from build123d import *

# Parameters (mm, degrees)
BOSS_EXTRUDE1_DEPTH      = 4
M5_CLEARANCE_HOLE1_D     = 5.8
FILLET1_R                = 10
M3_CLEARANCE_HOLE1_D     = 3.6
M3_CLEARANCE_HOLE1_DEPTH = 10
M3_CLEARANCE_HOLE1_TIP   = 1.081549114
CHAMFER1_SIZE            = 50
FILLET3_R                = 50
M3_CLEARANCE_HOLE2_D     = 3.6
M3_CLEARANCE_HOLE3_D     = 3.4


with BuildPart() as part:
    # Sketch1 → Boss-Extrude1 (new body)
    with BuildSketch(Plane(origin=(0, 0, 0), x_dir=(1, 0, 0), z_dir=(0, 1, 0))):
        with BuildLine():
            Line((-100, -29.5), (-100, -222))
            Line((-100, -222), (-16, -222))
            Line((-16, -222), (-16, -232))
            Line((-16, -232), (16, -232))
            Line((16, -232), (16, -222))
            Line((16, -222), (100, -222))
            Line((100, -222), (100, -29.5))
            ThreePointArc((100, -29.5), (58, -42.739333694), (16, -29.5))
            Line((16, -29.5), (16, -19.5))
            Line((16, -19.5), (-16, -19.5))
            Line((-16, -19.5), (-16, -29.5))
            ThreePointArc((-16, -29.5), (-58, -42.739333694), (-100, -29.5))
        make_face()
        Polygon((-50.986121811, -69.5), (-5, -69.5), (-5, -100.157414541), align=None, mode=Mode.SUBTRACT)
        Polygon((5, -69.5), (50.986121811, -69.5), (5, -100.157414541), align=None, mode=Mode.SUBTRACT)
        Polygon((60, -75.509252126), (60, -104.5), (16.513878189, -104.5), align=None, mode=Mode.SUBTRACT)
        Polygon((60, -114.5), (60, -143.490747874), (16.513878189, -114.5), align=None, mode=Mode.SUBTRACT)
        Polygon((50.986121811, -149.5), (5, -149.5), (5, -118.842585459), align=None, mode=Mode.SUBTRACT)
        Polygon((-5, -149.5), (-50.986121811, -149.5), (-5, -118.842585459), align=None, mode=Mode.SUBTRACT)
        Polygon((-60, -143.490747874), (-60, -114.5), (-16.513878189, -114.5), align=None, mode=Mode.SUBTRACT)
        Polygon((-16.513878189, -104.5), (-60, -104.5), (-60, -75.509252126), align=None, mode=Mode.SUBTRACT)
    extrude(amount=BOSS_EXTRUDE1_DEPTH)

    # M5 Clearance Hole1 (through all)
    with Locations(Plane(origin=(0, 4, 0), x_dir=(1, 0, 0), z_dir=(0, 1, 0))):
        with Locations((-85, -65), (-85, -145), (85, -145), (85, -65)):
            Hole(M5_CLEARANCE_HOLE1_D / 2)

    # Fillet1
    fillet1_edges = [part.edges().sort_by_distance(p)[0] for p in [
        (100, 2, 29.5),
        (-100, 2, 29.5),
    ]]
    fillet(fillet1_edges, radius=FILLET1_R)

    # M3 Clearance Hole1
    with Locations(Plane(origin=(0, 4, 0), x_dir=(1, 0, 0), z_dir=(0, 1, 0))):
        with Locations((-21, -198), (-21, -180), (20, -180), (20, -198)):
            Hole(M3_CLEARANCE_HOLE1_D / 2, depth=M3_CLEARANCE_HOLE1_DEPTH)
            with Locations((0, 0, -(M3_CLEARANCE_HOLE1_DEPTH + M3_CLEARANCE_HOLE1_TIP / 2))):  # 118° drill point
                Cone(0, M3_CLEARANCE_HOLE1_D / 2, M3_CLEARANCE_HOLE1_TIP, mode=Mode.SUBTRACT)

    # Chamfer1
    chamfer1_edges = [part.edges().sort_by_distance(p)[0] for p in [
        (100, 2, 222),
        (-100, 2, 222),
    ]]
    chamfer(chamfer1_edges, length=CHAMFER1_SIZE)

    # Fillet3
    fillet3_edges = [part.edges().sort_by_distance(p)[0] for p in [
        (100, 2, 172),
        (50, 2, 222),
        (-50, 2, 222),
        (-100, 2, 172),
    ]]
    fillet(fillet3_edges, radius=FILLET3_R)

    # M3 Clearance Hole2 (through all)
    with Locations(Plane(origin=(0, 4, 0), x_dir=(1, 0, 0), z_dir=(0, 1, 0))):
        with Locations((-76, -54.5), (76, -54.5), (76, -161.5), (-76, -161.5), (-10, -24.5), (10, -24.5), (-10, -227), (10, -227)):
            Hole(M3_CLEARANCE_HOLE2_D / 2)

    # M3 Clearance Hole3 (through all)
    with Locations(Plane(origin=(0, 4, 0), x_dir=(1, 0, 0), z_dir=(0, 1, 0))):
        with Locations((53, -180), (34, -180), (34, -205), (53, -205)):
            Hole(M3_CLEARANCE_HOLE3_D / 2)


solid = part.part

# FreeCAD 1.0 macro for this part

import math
import FreeCAD as App
import Part
import Sketcher


def edges_at(feature, points):
    """Names of the edges that pass closest to the given points."""
    edges = feature.Shape.Edges
    near = lambda p: min(range(len(edges)), key=lambda i: edges[i].distToShape(Part.Vertex(*p))[0])
    return sorted({f"Edge{near(p) + 1}" for p in points})


def add_polygon(sketch, points):
    """Adds a closed chain of lines whose ends are joined by coincident constraints."""
    first, n = sketch.GeometryCount, len(points)
    for a, b in zip(points, points[1:] + points[:1]):
        sketch.addGeometry(Part.LineSegment(App.Vector(*a, 0), App.Vector(*b, 0)), False)
    for i in range(n):
        sketch.addConstraint(Sketcher.Constraint("Coincident", first + i, 2, first + (i + 1) % n, 1))

doc = App.newDocument("Part")
body = doc.addObject("PartDesign::Body", "Body")

# Sketch on XZ plane
sketch1 = doc.addObject("Sketcher::SketchObject", "Sketch")
body.addObject(sketch1)
sketch1.AttachmentSupport = (doc.XZ_Plane, [""])
sketch1.MapMode = "FlatFace"
sketch1.addGeometry(Part.LineSegment(App.Vector(-100, 29.5, 0), App.Vector(-100, 222, 0)), False)  # 0
sketch1.addGeometry(Part.LineSegment(App.Vector(-100, 222, 0), App.Vector(-16, 222, 0)), False)  # 1
sketch1.addGeometry(Part.LineSegment(App.Vector(-16, 222, 0), App.Vector(-16, 232, 0)), False)  # 2
sketch1.addGeometry(Part.LineSegment(App.Vector(-16, 232, 0), App.Vector(16, 232, 0)), False)  # 3
sketch1.addGeometry(Part.LineSegment(App.Vector(16, 232, 0), App.Vector(16, 222, 0)), False)  # 4
sketch1.addGeometry(Part.LineSegment(App.Vector(16, 222, 0), App.Vector(100, 222, 0)), False)  # 5
sketch1.addGeometry(Part.LineSegment(App.Vector(100, 222, 0), App.Vector(100, 29.5, 0)), False)  # 6
sketch1.addGeometry(Part.ArcOfCircle(Part.Circle(App.Vector(58, -30.5, 0), App.Vector(0, 0, 1), 73.239334), math.radians(55.00798), math.radians(124.99202)), False)  # 7
sketch1.addGeometry(Part.LineSegment(App.Vector(16, 29.5, 0), App.Vector(16, 19.5, 0)), False)  # 8
sketch1.addGeometry(Part.LineSegment(App.Vector(16, 19.5, 0), App.Vector(-16, 19.5, 0)), False)  # 9
sketch1.addGeometry(Part.LineSegment(App.Vector(-16, 19.5, 0), App.Vector(-16, 29.5, 0)), False)  # 10
sketch1.addGeometry(Part.ArcOfCircle(Part.Circle(App.Vector(-58, -30.5, 0), App.Vector(0, 0, 1), 73.239334), math.radians(55.00798), math.radians(124.99202)), False)  # 11
add_polygon(sketch1, [(-5, 118.842585), (-5, 149.5), (-50.986122, 149.5)])  # lines 12-14
add_polygon(sketch1, [(-16.513878, 114.5), (-60, 143.490748), (-60, 114.5)])  # lines 15-17
add_polygon(sketch1, [(5, 118.842585), (50.986122, 149.5), (5, 149.5)])  # lines 18-20
add_polygon(sketch1, [(16.513878, 114.5), (60, 114.5), (60, 143.490748)])  # lines 21-23
add_polygon(sketch1, [(-60, 75.509252), (-16.513878, 104.5), (-60, 104.5)])  # lines 24-26
add_polygon(sketch1, [(-5, 100.157415), (-50.986122, 69.5), (-5, 69.5)])  # lines 27-29
add_polygon(sketch1, [(16.513878, 104.5), (60, 75.509252), (60, 104.5)])  # lines 30-32
add_polygon(sketch1, [(5, 100.157415), (5, 69.5), (50.986122, 69.5)])  # lines 33-35
sketch1.addConstraint(Sketcher.Constraint("Coincident", 0, 2, 1, 1))
sketch1.addConstraint(Sketcher.Constraint("Coincident", 1, 2, 2, 1))
sketch1.addConstraint(Sketcher.Constraint("Coincident", 2, 2, 3, 1))
sketch1.addConstraint(Sketcher.Constraint("Coincident", 3, 2, 4, 1))
sketch1.addConstraint(Sketcher.Constraint("Coincident", 4, 2, 5, 1))
sketch1.addConstraint(Sketcher.Constraint("Coincident", 5, 2, 6, 1))
sketch1.addConstraint(Sketcher.Constraint("Coincident", 6, 2, 7, 1))
sketch1.addConstraint(Sketcher.Constraint("Coincident", 7, 2, 8, 1))
sketch1.addConstraint(Sketcher.Constraint("Coincident", 8, 2, 9, 1))
sketch1.addConstraint(Sketcher.Constraint("Coincident", 9, 2, 10, 1))
sketch1.addConstraint(Sketcher.Constraint("Coincident", 10, 2, 11, 1))
sketch1.addConstraint(Sketcher.Constraint("Coincident", 11, 2, 0, 1))
sketch1.addConstraint(Sketcher.Constraint("Vertical", 0))
sketch1.addConstraint(Sketcher.Constraint("Horizontal", 1))
sketch1.addConstraint(Sketcher.Constraint("Vertical", 2))
sketch1.addConstraint(Sketcher.Constraint("Horizontal", 3))
sketch1.addConstraint(Sketcher.Constraint("Vertical", 4))
sketch1.addConstraint(Sketcher.Constraint("Horizontal", 5))
sketch1.addConstraint(Sketcher.Constraint("Vertical", 6))
sketch1.addConstraint(Sketcher.Constraint("Vertical", 8))
sketch1.addConstraint(Sketcher.Constraint("Horizontal", 9))
sketch1.addConstraint(Sketcher.Constraint("Vertical", 10))
sketch1.addConstraint(Sketcher.Constraint("Vertical", 12))
sketch1.addConstraint(Sketcher.Constraint("Horizontal", 13))
sketch1.addConstraint(Sketcher.Constraint("Vertical", 16))
sketch1.addConstraint(Sketcher.Constraint("Horizontal", 17))
sketch1.addConstraint(Sketcher.Constraint("Horizontal", 19))
sketch1.addConstraint(Sketcher.Constraint("Vertical", 20))
sketch1.addConstraint(Sketcher.Constraint("Horizontal", 21))
sketch1.addConstraint(Sketcher.Constraint("Vertical", 22))
sketch1.addConstraint(Sketcher.Constraint("Horizontal", 25))
sketch1.addConstraint(Sketcher.Constraint("Vertical", 26))
sketch1.addConstraint(Sketcher.Constraint("Horizontal", 28))
sketch1.addConstraint(Sketcher.Constraint("Vertical", 29))
sketch1.addConstraint(Sketcher.Constraint("Vertical", 31))
sketch1.addConstraint(Sketcher.Constraint("Horizontal", 32))
sketch1.addConstraint(Sketcher.Constraint("Vertical", 33))
sketch1.addConstraint(Sketcher.Constraint("Horizontal", 34))
sketch1.addConstraint(Sketcher.Constraint("Equal", 7, 11))
sketch1.addConstraint(Sketcher.Constraint("Symmetric", 7, 3, 11, 3, -2))
sketch1.addConstraint(Sketcher.Constraint("Symmetric", 1, 2, 4, 2, -2))
sketch1.addConstraint(Sketcher.Constraint("Symmetric", 13, 2, 18, 2, -2))
sketch1.addConstraint(Sketcher.Constraint("Symmetric", 14, 2, 20, 2, -2))
sketch1.addConstraint(Sketcher.Constraint("Symmetric", 16, 2, 21, 2, -2))
sketch1.addConstraint(Sketcher.Constraint("Symmetric", 26, 2, 30, 2, -2))
sketch1.addConstraint(Sketcher.Constraint("Symmetric", 24, 2, 32, 2, -2))
sketch1.addConstraint(Sketcher.Constraint("Symmetric", 28, 2, 33, 2, -2))
sketch1.addConstraint(Sketcher.Constraint("Parallel", 14, 15))
sketch1.addConstraint(Sketcher.Constraint("Parallel", 18, 23))
sketch1.addConstraint(Sketcher.Constraint("Parallel", 23, 24))
sketch1.addConstraint(Sketcher.Constraint("Parallel", 24, 27))
sketch1.addConstraint(Sketcher.Constraint("Parallel", 30, 35))
sketch1.addConstraint(Sketcher.Constraint("Horizontal", 6, 2, 7, 2))
sketch1.addConstraint(Sketcher.Constraint("Horizontal", 7, 2, 10, 2))
sketch1.addConstraint(Sketcher.Constraint("Horizontal", 10, 2, 11, 2))
sketch1.addConstraint(Sketcher.Constraint("Horizontal", 15, 2, 22, 2))
sketch1.addConstraint(Sketcher.Constraint("Horizontal", 29, 2, 35, 2))
sketch1.addConstraint(Sketcher.Constraint("Vertical", 4, 2, 7, 2))
sketch1.addConstraint(Sketcher.Constraint("Vertical", 17, 2, 24, 2))
sketch1.addConstraint(Sketcher.Constraint("Vertical", 16, 2, 25, 2))
sketch1.addConstraint(Sketcher.Constraint("Vertical", 13, 2, 27, 2))
sketch1.addConstraint(Sketcher.Constraint("Vertical", 14, 2, 28, 2))
sketch1.addConstraint(Sketcher.Constraint("Equal", 4, 8))
sketch1.addConstraint(Sketcher.Constraint("DistanceX", 1, 1, 1, 2, 84.0))
sketch1.addConstraint(Sketcher.Constraint("DistanceX", 3, 1, 3, 2, 32.0))
sketch1.addConstraint(Sketcher.Constraint("DistanceY", 2, 1, 2, 2, 10.0))
sketch1.addConstraint(Sketcher.Constraint("DistanceY", 0, 1, 0, 2, 192.5))
sketch1.addConstraint(Sketcher.Constraint("DistanceY", -1, 1, 0, 2, 222.0))
sketch1.addConstraint(Sketcher.Constraint("DistanceX", 12, 2, -1, 1, 5.0))
sketch1.addConstraint(Sketcher.Constraint("DistanceX", 15, 2, -1, 1, 60.0))
sketch1.addConstraint(Sketcher.Constraint("DistanceY", 7, 3, 6, 2, 60.0))
sketch1.addConstraint(Sketcher.Constraint("DistanceY", 16, 2, 13, 2, 35.0))
sketch1.addConstraint(Sketcher.Constraint("DistanceY", 11, 2, 16, 2, 85.0))
sketch1.addConstraint(Sketcher.Constraint("DistanceY", 24, 2, 17, 2, 10.0))
sketch1.addConstraint(Sketcher.Constraint("DistanceY", 27, 2, 25, 2, 35.0))
sketch1.addConstraint(Sketcher.Constraint("DistanceX", 17, 2, 18, 2, 67.5))
sketch1.addConstraint(Sketcher.Constraint("DistanceX", 13, 2, 13, 1, 45.986122))
sketch1.addConstraint(Sketcher.Constraint("Distance", 14, 55.26844))
pad1 = doc.addObject("PartDesign::Pad", "Pad")
body.addObject(pad1)
pad1.Profile = sketch1
pad1.Length = 4
pad1.Reversed = True

# Sketch on XZ plane
sketch2 = doc.addObject("Sketcher::SketchObject", "Sketch001")
body.addObject(sketch2)
sketch2.AttachmentSupport = (doc.XZ_Plane, [""])
sketch2.MapMode = "FlatFace"
sketch2.AttachmentOffset = App.Placement(App.Vector(0, 0, -4), App.Rotation())
sketch2.addGeometry(Part.Circle(App.Vector(-85, 65, 0), App.Vector(0, 0, 1), 2.9), False)
sketch2.addGeometry(Part.Circle(App.Vector(-85, 145, 0), App.Vector(0, 0, 1), 2.9), False)
sketch2.addGeometry(Part.Circle(App.Vector(85, 145, 0), App.Vector(0, 0, 1), 2.9), False)
sketch2.addGeometry(Part.Circle(App.Vector(85, 65, 0), App.Vector(0, 0, 1), 2.9), False)
sketch2.addConstraint(Sketcher.Constraint("Equal", 0, 1))
sketch2.addConstraint(Sketcher.Constraint("Equal", 1, 2))
sketch2.addConstraint(Sketcher.Constraint("Equal", 2, 3))
sketch2.addConstraint(Sketcher.Constraint("Symmetric", 1, 3, 2, 3, -2))
sketch2.addConstraint(Sketcher.Constraint("Symmetric", 0, 3, 3, 3, -2))
sketch2.addConstraint(Sketcher.Constraint("Vertical", 0, 3, 1, 3))
sketch2.addConstraint(Sketcher.Constraint("Diameter", 0, 5.8))
sketch2.addConstraint(Sketcher.Constraint("DistanceX", 0, 3, -1, 1, 85.0))
sketch2.addConstraint(Sketcher.Constraint("DistanceY", -1, 1, 0, 3, 65.0))
sketch2.addConstraint(Sketcher.Constraint("DistanceY", -1, 1, 1, 3, 145.0))
doc.recompute()
hole = doc.addObject("PartDesign::Hole", "Hole")
body.addObject(hole)
hole.Profile = sketch2
hole.ThreadType = "None"
hole.Diameter = 5.8
hole.DepthType = "ThroughAll"
hole.Reversed = True
doc.recompute()

fillet = doc.addObject("PartDesign::Fillet", "Fillet")
body.addObject(fillet)
fillet.Base = (hole, edges_at(hole, [(100, 2, 29.5), (-100, 2, 29.5)]))
fillet.Radius = 10

# Sketch on XZ plane
sketch3 = doc.addObject("Sketcher::SketchObject", "Sketch002")
body.addObject(sketch3)
sketch3.AttachmentSupport = (doc.XZ_Plane, [""])
sketch3.MapMode = "FlatFace"
sketch3.AttachmentOffset = App.Placement(App.Vector(0, 0, -4), App.Rotation())
sketch3.addGeometry(Part.Circle(App.Vector(-21, 198, 0), App.Vector(0, 0, 1), 1.8), False)
sketch3.addGeometry(Part.Circle(App.Vector(-21, 180, 0), App.Vector(0, 0, 1), 1.8), False)
sketch3.addGeometry(Part.Circle(App.Vector(20, 180, 0), App.Vector(0, 0, 1), 1.8), False)
sketch3.addGeometry(Part.Circle(App.Vector(20, 198, 0), App.Vector(0, 0, 1), 1.8), False)
sketch3.addConstraint(Sketcher.Constraint("Equal", 0, 1))
sketch3.addConstraint(Sketcher.Constraint("Equal", 1, 2))
sketch3.addConstraint(Sketcher.Constraint("Equal", 2, 3))
sketch3.addConstraint(Sketcher.Constraint("Horizontal", 1, 3, 2, 3))
sketch3.addConstraint(Sketcher.Constraint("Horizontal", 0, 3, 3, 3))
sketch3.addConstraint(Sketcher.Constraint("Vertical", 0, 3, 1, 3))
sketch3.addConstraint(Sketcher.Constraint("Vertical", 2, 3, 3, 3))
sketch3.addConstraint(Sketcher.Constraint("Diameter", 0, 3.6))
sketch3.addConstraint(Sketcher.Constraint("DistanceX", 0, 3, -1, 1, 21.0))
sketch3.addConstraint(Sketcher.Constraint("DistanceY", -1, 1, 0, 3, 198.0))
sketch3.addConstraint(Sketcher.Constraint("DistanceY", -1, 1, 1, 3, 180.0))
sketch3.addConstraint(Sketcher.Constraint("DistanceX", -1, 1, 2, 3, 20.0))
doc.recompute()
hole2 = doc.addObject("PartDesign::Hole", "Hole001")
body.addObject(hole2)
hole2.Profile = sketch3
hole2.ThreadType = "None"
hole2.Diameter = 3.6
hole2.DepthType = "Dimension"
hole2.Depth = 10
hole2.DrillPoint = "Angled"
hole2.DrillPointAngle = 118
hole2.Reversed = True
doc.recompute()

chamfer = doc.addObject("PartDesign::Chamfer", "Chamfer")
body.addObject(chamfer)
chamfer.Base = (hole2, edges_at(hole2, [(100, 2, 222), (-100, 2, 222)]))
chamfer.Size = 50
doc.recompute()

fillet2 = doc.addObject("PartDesign::Fillet", "Fillet001")
body.addObject(fillet2)
fillet2.Base = (chamfer, edges_at(chamfer, [
    (100, 2, 172),
    (50, 2, 222),
    (-50, 2, 222),
    (-100, 2, 172),
]))
fillet2.Radius = 50

# Sketch on XZ plane
sketch4 = doc.addObject("Sketcher::SketchObject", "Sketch003")
body.addObject(sketch4)
sketch4.AttachmentSupport = (doc.XZ_Plane, [""])
sketch4.MapMode = "FlatFace"
sketch4.AttachmentOffset = App.Placement(App.Vector(0, 0, -4), App.Rotation())
sketch4.addGeometry(Part.Circle(App.Vector(-76, 54.5, 0), App.Vector(0, 0, 1), 1.8), False)
sketch4.addGeometry(Part.Circle(App.Vector(76, 54.5, 0), App.Vector(0, 0, 1), 1.8), False)
sketch4.addGeometry(Part.Circle(App.Vector(76, 161.5, 0), App.Vector(0, 0, 1), 1.8), False)
sketch4.addGeometry(Part.Circle(App.Vector(-76, 161.5, 0), App.Vector(0, 0, 1), 1.8), False)
sketch4.addGeometry(Part.Circle(App.Vector(-10, 24.5, 0), App.Vector(0, 0, 1), 1.8), False)
sketch4.addGeometry(Part.Circle(App.Vector(10, 24.5, 0), App.Vector(0, 0, 1), 1.8), False)
sketch4.addGeometry(Part.Circle(App.Vector(-10, 227, 0), App.Vector(0, 0, 1), 1.8), False)
sketch4.addGeometry(Part.Circle(App.Vector(10, 227, 0), App.Vector(0, 0, 1), 1.8), False)
sketch4.addConstraint(Sketcher.Constraint("Equal", 0, 1))
sketch4.addConstraint(Sketcher.Constraint("Equal", 1, 2))
sketch4.addConstraint(Sketcher.Constraint("Equal", 2, 3))
sketch4.addConstraint(Sketcher.Constraint("Equal", 3, 4))
sketch4.addConstraint(Sketcher.Constraint("Equal", 4, 5))
sketch4.addConstraint(Sketcher.Constraint("Equal", 5, 6))
sketch4.addConstraint(Sketcher.Constraint("Equal", 6, 7))
sketch4.addConstraint(Sketcher.Constraint("Symmetric", 0, 3, 1, 3, -2))
sketch4.addConstraint(Sketcher.Constraint("Symmetric", 2, 3, 3, 3, -2))
sketch4.addConstraint(Sketcher.Constraint("Symmetric", 4, 3, 5, 3, -2))
sketch4.addConstraint(Sketcher.Constraint("Symmetric", 6, 3, 7, 3, -2))
sketch4.addConstraint(Sketcher.Constraint("Vertical", 1, 3, 2, 3))
sketch4.addConstraint(Sketcher.Constraint("Vertical", 4, 3, 6, 3))
sketch4.addConstraint(Sketcher.Constraint("Diameter", 0, 3.6))
sketch4.addConstraint(Sketcher.Constraint("DistanceX", 0, 3, -1, 1, 76.0))
sketch4.addConstraint(Sketcher.Constraint("DistanceX", 4, 3, -1, 1, 10.0))
sketch4.addConstraint(Sketcher.Constraint("DistanceY", -1, 1, 6, 3, 227.0))
sketch4.addConstraint(Sketcher.Constraint("DistanceY", 1, 3, 2, 3, 107.0))
sketch4.addConstraint(Sketcher.Constraint("DistanceY", 4, 3, 0, 3, 30.0))
sketch4.addConstraint(Sketcher.Constraint("DistanceY", -1, 1, 0, 3, 54.5))
doc.recompute()
hole3 = doc.addObject("PartDesign::Hole", "Hole002")
body.addObject(hole3)
hole3.Profile = sketch4
hole3.ThreadType = "None"
hole3.Diameter = 3.6
hole3.DepthType = "ThroughAll"
hole3.Reversed = True

# Sketch on XZ plane
sketch5 = doc.addObject("Sketcher::SketchObject", "Sketch004")
body.addObject(sketch5)
sketch5.AttachmentSupport = (doc.XZ_Plane, [""])
sketch5.MapMode = "FlatFace"
sketch5.AttachmentOffset = App.Placement(App.Vector(0, 0, -4), App.Rotation())
sketch5.addGeometry(Part.Circle(App.Vector(53, 180, 0), App.Vector(0, 0, 1), 1.7), False)
sketch5.addGeometry(Part.Circle(App.Vector(34, 180, 0), App.Vector(0, 0, 1), 1.7), False)
sketch5.addGeometry(Part.Circle(App.Vector(34, 205, 0), App.Vector(0, 0, 1), 1.7), False)
sketch5.addGeometry(Part.Circle(App.Vector(53, 205, 0), App.Vector(0, 0, 1), 1.7), False)
sketch5.addConstraint(Sketcher.Constraint("Equal", 0, 1))
sketch5.addConstraint(Sketcher.Constraint("Equal", 1, 2))
sketch5.addConstraint(Sketcher.Constraint("Equal", 2, 3))
sketch5.addConstraint(Sketcher.Constraint("Horizontal", 0, 3, 1, 3))
sketch5.addConstraint(Sketcher.Constraint("Horizontal", 2, 3, 3, 3))
sketch5.addConstraint(Sketcher.Constraint("Vertical", 1, 3, 2, 3))
sketch5.addConstraint(Sketcher.Constraint("Vertical", 0, 3, 3, 3))
sketch5.addConstraint(Sketcher.Constraint("Diameter", 0, 3.4))
sketch5.addConstraint(Sketcher.Constraint("DistanceX", -1, 1, 0, 3, 53.0))
sketch5.addConstraint(Sketcher.Constraint("DistanceY", -1, 1, 0, 3, 180.0))
sketch5.addConstraint(Sketcher.Constraint("DistanceX", -1, 1, 1, 3, 34.0))
sketch5.addConstraint(Sketcher.Constraint("DistanceY", -1, 1, 2, 3, 205.0))
doc.recompute()
hole4 = doc.addObject("PartDesign::Hole", "Hole003")
body.addObject(hole4)
hole4.Profile = sketch5
hole4.ThreadType = "None"
hole4.Diameter = 3.4
hole4.DepthType = "ThroughAll"
hole4.Reversed = True

doc.recompute()
